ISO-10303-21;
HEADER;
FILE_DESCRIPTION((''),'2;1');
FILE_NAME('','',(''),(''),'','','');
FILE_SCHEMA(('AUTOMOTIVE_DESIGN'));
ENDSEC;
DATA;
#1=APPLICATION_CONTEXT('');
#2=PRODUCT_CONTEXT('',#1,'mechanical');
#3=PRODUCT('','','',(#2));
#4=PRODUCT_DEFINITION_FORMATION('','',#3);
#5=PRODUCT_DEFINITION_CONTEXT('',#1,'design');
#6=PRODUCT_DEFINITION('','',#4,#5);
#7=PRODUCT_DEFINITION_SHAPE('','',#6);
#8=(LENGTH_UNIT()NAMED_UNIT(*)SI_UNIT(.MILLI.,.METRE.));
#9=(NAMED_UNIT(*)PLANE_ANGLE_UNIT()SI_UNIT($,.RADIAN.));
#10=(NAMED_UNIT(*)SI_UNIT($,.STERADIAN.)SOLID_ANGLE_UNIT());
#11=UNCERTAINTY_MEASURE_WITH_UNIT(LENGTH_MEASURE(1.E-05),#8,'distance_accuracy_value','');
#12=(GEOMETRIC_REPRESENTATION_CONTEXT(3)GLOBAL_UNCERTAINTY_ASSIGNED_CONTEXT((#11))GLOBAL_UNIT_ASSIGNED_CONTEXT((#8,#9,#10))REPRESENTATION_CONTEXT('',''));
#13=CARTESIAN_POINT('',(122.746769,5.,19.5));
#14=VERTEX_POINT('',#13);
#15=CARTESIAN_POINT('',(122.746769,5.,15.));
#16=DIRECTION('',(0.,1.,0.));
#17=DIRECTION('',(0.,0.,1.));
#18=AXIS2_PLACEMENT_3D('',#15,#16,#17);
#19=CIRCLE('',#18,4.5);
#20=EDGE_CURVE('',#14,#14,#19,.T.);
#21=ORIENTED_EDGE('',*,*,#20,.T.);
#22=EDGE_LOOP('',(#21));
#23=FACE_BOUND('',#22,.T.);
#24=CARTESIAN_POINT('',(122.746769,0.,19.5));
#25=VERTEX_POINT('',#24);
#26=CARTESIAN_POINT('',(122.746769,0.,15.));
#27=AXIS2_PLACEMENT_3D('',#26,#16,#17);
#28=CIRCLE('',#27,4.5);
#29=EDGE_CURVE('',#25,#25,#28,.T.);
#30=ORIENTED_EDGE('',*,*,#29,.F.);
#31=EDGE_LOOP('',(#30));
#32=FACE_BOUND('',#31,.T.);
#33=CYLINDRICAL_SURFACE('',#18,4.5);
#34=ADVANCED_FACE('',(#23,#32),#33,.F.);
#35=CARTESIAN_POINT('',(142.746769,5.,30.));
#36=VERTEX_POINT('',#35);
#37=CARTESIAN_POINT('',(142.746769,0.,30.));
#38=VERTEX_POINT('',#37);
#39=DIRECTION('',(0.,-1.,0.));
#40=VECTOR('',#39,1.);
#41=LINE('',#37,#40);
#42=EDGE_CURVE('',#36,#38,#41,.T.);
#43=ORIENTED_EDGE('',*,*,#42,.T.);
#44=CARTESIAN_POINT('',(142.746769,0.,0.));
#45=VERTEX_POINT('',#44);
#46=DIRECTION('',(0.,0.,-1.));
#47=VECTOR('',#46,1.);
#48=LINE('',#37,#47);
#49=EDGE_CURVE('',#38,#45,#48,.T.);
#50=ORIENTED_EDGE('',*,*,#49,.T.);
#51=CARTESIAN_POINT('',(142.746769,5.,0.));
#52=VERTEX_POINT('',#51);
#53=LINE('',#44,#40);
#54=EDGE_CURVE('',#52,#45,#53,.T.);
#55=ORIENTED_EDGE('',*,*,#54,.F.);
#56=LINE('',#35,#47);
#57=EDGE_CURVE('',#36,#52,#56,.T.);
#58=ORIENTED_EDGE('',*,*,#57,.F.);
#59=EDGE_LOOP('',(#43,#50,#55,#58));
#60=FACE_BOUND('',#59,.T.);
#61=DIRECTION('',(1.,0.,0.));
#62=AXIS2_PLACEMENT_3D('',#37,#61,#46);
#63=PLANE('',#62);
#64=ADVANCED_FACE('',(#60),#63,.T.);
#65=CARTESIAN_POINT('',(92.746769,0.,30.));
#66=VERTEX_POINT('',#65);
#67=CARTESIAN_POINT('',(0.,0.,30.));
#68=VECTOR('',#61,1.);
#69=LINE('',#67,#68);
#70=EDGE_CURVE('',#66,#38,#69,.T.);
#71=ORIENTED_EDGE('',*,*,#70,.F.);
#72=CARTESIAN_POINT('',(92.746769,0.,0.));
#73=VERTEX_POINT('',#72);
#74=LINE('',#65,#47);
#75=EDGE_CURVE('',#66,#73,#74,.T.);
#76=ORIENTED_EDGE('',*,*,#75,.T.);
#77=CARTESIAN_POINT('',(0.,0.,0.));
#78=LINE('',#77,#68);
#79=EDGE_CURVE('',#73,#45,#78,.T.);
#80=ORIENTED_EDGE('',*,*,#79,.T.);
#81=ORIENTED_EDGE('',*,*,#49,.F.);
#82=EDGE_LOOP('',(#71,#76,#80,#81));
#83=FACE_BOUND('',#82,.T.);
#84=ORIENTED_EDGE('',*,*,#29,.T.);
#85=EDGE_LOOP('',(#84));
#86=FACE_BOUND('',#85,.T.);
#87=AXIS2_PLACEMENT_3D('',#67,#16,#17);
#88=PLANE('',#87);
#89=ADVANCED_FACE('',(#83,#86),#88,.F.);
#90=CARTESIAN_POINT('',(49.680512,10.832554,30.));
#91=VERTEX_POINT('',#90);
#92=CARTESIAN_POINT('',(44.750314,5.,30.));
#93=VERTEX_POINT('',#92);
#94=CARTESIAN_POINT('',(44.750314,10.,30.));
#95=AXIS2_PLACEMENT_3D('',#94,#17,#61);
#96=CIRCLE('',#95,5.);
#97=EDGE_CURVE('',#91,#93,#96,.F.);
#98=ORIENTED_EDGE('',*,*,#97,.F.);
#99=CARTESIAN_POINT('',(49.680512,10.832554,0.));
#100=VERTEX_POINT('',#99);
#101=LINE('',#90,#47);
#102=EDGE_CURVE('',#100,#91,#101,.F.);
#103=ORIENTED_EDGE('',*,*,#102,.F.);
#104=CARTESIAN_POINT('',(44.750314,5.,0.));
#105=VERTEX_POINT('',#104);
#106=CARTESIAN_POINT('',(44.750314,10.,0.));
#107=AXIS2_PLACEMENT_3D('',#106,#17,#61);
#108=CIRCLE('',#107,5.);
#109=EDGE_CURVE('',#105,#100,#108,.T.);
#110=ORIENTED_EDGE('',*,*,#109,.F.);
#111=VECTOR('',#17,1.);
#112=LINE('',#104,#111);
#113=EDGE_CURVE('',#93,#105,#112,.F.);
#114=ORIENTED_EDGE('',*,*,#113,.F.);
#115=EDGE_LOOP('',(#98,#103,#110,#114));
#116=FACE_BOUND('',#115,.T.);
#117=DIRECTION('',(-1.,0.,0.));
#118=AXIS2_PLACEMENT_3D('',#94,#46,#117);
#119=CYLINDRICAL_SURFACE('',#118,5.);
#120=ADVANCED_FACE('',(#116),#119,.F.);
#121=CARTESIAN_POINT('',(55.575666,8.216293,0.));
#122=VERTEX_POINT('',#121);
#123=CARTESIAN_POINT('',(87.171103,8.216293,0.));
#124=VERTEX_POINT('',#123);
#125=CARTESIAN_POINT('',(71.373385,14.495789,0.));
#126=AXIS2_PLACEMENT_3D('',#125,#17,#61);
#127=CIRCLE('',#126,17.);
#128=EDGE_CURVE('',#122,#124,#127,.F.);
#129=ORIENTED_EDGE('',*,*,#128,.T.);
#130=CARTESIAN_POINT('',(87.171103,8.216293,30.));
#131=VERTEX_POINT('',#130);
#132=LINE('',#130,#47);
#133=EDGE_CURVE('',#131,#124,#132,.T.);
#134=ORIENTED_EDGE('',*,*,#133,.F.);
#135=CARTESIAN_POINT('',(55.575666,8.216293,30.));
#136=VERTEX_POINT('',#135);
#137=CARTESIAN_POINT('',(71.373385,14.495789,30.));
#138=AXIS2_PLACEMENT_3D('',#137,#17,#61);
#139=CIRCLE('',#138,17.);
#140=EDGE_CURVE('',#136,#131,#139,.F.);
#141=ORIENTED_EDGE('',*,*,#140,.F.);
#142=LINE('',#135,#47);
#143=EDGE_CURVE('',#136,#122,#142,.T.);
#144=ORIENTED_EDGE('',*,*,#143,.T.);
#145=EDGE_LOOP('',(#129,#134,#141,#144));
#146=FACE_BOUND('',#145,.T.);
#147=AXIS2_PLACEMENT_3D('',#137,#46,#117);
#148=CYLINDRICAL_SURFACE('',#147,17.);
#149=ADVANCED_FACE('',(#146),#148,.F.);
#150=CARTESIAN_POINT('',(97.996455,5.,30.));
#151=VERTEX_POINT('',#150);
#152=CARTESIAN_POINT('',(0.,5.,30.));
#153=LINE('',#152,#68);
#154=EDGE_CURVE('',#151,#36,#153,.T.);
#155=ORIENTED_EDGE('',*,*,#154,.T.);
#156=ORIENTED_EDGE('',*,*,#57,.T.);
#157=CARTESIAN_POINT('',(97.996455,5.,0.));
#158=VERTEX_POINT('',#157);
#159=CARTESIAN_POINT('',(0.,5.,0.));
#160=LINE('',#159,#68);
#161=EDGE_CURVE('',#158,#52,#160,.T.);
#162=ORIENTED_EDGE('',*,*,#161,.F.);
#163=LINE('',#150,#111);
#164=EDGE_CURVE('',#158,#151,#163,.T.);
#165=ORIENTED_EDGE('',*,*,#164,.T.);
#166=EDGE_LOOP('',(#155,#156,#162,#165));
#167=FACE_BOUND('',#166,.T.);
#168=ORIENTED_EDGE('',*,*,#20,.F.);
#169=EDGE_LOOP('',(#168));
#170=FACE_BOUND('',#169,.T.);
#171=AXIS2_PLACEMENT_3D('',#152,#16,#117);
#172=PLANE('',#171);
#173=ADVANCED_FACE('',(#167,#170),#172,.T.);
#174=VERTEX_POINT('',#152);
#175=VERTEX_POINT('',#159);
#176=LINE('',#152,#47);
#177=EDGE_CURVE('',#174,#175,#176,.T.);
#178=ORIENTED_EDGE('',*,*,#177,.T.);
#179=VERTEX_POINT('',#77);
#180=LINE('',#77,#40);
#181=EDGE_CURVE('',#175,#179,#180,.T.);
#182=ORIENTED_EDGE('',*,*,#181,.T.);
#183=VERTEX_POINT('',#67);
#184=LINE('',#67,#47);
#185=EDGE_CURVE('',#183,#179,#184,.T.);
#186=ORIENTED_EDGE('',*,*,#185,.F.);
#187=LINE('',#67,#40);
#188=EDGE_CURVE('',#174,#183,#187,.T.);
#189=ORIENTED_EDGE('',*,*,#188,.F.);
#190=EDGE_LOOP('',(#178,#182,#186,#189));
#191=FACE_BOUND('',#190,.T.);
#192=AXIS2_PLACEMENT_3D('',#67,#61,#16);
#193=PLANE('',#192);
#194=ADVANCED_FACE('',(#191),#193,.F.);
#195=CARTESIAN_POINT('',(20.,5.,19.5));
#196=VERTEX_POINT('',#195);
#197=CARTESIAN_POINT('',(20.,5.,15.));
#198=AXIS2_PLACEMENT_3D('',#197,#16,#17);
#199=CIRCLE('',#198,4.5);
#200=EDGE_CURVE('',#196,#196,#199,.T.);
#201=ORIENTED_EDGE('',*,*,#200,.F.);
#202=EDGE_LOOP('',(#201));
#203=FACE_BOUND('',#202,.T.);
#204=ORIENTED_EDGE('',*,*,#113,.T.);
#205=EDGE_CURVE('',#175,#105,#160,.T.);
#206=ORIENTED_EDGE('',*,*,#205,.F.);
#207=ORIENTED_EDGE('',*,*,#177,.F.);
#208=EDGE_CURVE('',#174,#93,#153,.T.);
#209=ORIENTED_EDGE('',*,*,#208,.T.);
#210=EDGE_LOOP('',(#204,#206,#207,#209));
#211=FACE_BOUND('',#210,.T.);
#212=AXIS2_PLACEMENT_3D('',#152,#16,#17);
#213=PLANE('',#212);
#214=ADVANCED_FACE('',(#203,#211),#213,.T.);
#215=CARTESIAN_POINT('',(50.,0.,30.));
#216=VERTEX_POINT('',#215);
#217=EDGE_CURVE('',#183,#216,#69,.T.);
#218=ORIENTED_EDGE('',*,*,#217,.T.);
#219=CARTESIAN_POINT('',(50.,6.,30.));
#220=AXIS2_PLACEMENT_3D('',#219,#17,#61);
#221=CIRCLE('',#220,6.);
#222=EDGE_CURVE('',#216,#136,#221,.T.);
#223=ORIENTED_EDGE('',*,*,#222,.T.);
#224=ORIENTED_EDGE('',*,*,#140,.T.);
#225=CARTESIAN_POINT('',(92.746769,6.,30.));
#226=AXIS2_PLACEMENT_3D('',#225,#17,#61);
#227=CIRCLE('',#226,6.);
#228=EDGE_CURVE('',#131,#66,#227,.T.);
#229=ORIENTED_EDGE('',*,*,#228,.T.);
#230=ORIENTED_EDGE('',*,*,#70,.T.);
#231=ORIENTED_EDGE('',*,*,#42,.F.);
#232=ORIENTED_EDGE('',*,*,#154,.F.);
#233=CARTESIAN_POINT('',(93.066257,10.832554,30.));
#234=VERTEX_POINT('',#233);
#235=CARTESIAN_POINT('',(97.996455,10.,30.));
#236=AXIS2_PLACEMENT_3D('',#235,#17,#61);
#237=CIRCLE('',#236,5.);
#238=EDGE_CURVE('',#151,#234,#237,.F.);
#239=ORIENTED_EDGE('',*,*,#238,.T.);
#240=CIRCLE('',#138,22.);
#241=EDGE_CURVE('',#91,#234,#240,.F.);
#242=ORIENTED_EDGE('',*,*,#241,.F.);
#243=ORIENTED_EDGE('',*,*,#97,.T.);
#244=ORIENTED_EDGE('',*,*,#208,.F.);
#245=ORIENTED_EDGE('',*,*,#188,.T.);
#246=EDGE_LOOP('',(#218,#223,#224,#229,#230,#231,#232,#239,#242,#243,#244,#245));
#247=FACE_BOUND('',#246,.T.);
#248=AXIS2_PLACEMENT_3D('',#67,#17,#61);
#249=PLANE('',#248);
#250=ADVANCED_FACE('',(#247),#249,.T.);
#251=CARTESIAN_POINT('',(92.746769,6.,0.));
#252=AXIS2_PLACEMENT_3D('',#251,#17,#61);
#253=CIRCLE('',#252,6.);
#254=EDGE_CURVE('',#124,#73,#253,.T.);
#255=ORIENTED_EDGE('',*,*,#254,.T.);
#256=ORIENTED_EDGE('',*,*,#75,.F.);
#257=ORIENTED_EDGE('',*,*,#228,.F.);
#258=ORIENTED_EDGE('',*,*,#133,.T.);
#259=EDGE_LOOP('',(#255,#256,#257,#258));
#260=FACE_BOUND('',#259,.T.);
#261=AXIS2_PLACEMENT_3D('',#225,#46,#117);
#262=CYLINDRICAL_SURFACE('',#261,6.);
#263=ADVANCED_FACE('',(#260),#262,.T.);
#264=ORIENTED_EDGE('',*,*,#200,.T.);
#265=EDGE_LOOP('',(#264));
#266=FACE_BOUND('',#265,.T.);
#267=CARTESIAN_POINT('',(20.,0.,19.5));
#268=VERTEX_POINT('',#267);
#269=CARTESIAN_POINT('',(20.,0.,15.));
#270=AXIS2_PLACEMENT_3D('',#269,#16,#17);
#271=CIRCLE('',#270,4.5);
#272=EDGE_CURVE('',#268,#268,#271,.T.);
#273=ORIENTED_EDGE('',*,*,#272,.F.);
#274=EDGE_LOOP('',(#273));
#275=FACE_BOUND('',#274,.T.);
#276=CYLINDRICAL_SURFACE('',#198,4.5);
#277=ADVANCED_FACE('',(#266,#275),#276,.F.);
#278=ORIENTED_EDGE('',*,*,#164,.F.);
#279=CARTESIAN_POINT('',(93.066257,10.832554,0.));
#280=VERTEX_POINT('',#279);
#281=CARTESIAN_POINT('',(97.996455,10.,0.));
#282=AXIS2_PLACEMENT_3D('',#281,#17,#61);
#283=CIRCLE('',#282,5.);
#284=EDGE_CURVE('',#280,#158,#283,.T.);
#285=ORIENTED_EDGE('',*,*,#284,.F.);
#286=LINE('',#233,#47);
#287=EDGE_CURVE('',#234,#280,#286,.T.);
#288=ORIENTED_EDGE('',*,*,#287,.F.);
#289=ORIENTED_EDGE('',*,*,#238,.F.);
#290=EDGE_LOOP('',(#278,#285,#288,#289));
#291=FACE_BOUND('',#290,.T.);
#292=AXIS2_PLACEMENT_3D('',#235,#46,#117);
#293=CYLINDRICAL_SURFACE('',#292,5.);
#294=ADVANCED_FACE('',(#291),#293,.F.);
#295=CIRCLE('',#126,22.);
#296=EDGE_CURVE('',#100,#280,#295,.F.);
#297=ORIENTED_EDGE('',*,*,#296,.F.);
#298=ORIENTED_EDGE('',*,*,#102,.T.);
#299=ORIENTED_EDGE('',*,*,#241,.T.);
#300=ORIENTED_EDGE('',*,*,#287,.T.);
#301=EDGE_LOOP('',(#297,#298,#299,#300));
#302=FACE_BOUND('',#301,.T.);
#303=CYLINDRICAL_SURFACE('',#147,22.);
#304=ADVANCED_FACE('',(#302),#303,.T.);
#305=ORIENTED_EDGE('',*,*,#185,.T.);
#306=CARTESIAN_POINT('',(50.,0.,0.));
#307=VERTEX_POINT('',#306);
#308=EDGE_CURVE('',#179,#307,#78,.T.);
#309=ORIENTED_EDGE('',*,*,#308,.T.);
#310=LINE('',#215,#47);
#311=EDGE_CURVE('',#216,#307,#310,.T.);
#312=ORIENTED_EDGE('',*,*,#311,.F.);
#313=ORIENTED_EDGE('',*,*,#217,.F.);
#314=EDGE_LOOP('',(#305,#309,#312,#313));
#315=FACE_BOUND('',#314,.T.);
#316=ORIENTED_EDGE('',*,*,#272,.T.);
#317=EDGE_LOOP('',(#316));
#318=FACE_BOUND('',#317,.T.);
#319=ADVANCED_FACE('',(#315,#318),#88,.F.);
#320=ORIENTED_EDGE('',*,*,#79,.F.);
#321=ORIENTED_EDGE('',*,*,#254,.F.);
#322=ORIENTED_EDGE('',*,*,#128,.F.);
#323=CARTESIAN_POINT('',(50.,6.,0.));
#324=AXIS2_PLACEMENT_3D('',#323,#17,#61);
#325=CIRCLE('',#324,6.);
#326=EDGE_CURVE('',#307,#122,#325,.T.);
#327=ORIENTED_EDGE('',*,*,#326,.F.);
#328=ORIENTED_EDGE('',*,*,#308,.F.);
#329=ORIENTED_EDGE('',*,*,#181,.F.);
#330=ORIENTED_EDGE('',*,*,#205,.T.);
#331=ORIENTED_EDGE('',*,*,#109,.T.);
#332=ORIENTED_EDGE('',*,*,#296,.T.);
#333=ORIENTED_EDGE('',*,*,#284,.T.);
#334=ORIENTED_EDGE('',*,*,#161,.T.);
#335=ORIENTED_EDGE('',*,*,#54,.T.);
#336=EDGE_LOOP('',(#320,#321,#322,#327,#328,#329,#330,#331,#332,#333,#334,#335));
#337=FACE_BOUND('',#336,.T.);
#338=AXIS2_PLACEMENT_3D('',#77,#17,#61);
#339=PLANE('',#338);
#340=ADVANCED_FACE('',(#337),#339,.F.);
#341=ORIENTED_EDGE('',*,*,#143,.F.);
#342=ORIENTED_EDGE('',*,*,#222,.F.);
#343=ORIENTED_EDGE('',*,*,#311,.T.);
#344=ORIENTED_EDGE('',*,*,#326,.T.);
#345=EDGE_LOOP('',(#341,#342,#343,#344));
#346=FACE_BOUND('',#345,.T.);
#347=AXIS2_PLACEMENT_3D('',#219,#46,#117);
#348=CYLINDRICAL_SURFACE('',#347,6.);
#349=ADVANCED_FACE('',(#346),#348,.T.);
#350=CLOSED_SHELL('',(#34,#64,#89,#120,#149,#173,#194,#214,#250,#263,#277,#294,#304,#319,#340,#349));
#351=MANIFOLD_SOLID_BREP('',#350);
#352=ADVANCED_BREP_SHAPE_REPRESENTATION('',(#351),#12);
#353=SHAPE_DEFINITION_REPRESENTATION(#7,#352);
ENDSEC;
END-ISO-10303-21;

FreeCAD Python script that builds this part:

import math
import FreeCAD as App
import Part
import Sketcher

V = App.Vector
Q = App.Units.Quantity


def edges_at(feature, points):
    """Names of the edges that pass closest to the given points."""
    edges = feature.Shape.Edges
    near = lambda p: min(range(len(edges)), key=lambda i: edges[i].distToShape(Part.Vertex(*p))[0])
    return sorted({f"Edge{near(p) + 1}" for p in points})

doc = App.newDocument("Part")
body = doc.addObject("PartDesign::Body", "Body")

sketch1 = body.newObject("Sketcher::SketchObject", "Sketch")
sketch1.AttachmentSupport = (doc.getObject("XY_Plane"), [""])
sketch1.MapMode = "FlatFace"
sketch1.addGeometry([
    Part.LineSegment(V(0, 5, 0), V(0, 0, 0)),
    Part.LineSegment(V(0, 0, 0), V(50, 0, 0)),
    Part.ArcOfCircle(Part.Circle(V(50, 6, 0), V(0, 0, 1), 6), math.radians(-90), math.radians(21.677517)),
    Part.ArcOfCircle(Part.Circle(V(71.373385, 14.495789, 0), V(0, 0, 1), 17), math.radians(-21.677517), math.radians(201.677517)),
    Part.ArcOfCircle(Part.Circle(V(92.746769, 6, 0), V(0, 0, 1), 6), math.radians(158.322483), math.radians(270)),
    Part.LineSegment(V(92.746769, 0, 0), V(142.746769, 0, 0)),
    Part.LineSegment(V(142.746769, 0, 0), V(142.746769, 5, 0)),
    Part.LineSegment(V(142.746769, 5, 0), V(91.218535, 5, 0)),
    Part.ArcOfCircle(Part.Circle(V(71.373385, 14.495789, 0), V(0, 0, 1), 22), math.radians(-25.570844), math.radians(205.570844)),
    Part.LineSegment(V(51.528234, 5, 0), V(0, 5, 0)),
], False)
sketch1.addConstraint([
    Sketcher.Constraint("Coincident", 0, 2, 1, 1),
    Sketcher.Constraint("Tangent", 1, 2, 2, 1),
    Sketcher.Constraint("Tangent", 2, 2, 3, 2),
    Sketcher.Constraint("Tangent", 3, 1, 4, 1),
    Sketcher.Constraint("Tangent", 4, 2, 5, 1),
    Sketcher.Constraint("Coincident", 5, 2, 6, 1),
    Sketcher.Constraint("Coincident", 6, 2, 7, 1),
    Sketcher.Constraint("Coincident", 7, 2, 8, 1),
    Sketcher.Constraint("Coincident", 8, 2, 9, 1),
    Sketcher.Constraint("Coincident", 9, 2, 0, 1),
    Sketcher.Constraint("Vertical", 0),
    Sketcher.Constraint("Horizontal", 1),
    Sketcher.Constraint("Horizontal", 5),
    Sketcher.Constraint("Vertical", 6),
    Sketcher.Constraint("Horizontal", 7),
    Sketcher.Constraint("Horizontal", 9),
    Sketcher.Constraint("Coincident", 0, 2, -1, 1),
    Sketcher.Constraint("Coincident", 8, 3, 3, 3),
    Sketcher.Constraint("Equal", 2, 4),
    Sketcher.Constraint("PointOnObject", 4, 2, -1),
    Sketcher.Constraint("Horizontal", 7, 2, 8, 2),
    Sketcher.Constraint("Equal", 1, 5),
    Sketcher.Constraint("Radius", 2, Q("6 mm")),
    Sketcher.Constraint("Radius", 3, Q("17 mm")),
    Sketcher.Constraint("Radius", 8, Q("22 mm")),
    Sketcher.Constraint("DistanceX", 1, 1, 1, 2, Q("50 mm")),
    Sketcher.Constraint("DistanceY", 0, 2, 0, 1, Q("5 mm")),
    Sketcher.Constraint("DistanceX", 7, 2, 7, 1, Q("51.528234 mm")),
])
pad1 = body.newObject("PartDesign::Pad", "Pad")
pad1.Profile = sketch1
pad1.Length = 30
doc.recompute()

fillet = body.newObject("PartDesign::Fillet", "Fillet")
fillet.Base = (pad1, edges_at(pad1, [(51.528, 5, 15), (91.219, 5, 15)]))
fillet.Radius = 5

sketch2 = body.newObject("Sketcher::SketchObject", "Sketch001")
sketch2.AttachmentSupport = (doc.getObject("XZ_Plane"), [""])
sketch2.MapMode = "FlatFace"
sketch2.AttachmentOffset = App.Placement(V(0, 0, -5), App.Rotation())
sketch2.addGeometry([
    Part.Circle(V(20, 15, 0), V(0, 0, 1), 4.5),
    Part.Circle(V(122.746769, 15, 0), V(0, 0, 1), 4.5),
], False)
sketch2.addConstraint([
    Sketcher.Constraint("Equal", 0, 1),
    Sketcher.Constraint("Horizontal", 0, 3, 1, 3),
    Sketcher.Constraint("Diameter", 0, Q("9 mm")),
    Sketcher.Constraint("DistanceX", -1, 1, 0, 3, Q("20 mm")),
    Sketcher.Constraint("DistanceY", -1, 1, 0, 3, Q("15 mm")),
    Sketcher.Constraint("DistanceX", -1, 1, 1, 3, Q("122.746769 mm")),
])
doc.recompute()
hole = body.newObject("PartDesign::Hole", "Hole")
hole.Profile = sketch2
hole.ThreadType = "None"
hole.Diameter = 9
hole.DepthType = "ThroughAll"
hole.Reversed = True

doc.recompute()
